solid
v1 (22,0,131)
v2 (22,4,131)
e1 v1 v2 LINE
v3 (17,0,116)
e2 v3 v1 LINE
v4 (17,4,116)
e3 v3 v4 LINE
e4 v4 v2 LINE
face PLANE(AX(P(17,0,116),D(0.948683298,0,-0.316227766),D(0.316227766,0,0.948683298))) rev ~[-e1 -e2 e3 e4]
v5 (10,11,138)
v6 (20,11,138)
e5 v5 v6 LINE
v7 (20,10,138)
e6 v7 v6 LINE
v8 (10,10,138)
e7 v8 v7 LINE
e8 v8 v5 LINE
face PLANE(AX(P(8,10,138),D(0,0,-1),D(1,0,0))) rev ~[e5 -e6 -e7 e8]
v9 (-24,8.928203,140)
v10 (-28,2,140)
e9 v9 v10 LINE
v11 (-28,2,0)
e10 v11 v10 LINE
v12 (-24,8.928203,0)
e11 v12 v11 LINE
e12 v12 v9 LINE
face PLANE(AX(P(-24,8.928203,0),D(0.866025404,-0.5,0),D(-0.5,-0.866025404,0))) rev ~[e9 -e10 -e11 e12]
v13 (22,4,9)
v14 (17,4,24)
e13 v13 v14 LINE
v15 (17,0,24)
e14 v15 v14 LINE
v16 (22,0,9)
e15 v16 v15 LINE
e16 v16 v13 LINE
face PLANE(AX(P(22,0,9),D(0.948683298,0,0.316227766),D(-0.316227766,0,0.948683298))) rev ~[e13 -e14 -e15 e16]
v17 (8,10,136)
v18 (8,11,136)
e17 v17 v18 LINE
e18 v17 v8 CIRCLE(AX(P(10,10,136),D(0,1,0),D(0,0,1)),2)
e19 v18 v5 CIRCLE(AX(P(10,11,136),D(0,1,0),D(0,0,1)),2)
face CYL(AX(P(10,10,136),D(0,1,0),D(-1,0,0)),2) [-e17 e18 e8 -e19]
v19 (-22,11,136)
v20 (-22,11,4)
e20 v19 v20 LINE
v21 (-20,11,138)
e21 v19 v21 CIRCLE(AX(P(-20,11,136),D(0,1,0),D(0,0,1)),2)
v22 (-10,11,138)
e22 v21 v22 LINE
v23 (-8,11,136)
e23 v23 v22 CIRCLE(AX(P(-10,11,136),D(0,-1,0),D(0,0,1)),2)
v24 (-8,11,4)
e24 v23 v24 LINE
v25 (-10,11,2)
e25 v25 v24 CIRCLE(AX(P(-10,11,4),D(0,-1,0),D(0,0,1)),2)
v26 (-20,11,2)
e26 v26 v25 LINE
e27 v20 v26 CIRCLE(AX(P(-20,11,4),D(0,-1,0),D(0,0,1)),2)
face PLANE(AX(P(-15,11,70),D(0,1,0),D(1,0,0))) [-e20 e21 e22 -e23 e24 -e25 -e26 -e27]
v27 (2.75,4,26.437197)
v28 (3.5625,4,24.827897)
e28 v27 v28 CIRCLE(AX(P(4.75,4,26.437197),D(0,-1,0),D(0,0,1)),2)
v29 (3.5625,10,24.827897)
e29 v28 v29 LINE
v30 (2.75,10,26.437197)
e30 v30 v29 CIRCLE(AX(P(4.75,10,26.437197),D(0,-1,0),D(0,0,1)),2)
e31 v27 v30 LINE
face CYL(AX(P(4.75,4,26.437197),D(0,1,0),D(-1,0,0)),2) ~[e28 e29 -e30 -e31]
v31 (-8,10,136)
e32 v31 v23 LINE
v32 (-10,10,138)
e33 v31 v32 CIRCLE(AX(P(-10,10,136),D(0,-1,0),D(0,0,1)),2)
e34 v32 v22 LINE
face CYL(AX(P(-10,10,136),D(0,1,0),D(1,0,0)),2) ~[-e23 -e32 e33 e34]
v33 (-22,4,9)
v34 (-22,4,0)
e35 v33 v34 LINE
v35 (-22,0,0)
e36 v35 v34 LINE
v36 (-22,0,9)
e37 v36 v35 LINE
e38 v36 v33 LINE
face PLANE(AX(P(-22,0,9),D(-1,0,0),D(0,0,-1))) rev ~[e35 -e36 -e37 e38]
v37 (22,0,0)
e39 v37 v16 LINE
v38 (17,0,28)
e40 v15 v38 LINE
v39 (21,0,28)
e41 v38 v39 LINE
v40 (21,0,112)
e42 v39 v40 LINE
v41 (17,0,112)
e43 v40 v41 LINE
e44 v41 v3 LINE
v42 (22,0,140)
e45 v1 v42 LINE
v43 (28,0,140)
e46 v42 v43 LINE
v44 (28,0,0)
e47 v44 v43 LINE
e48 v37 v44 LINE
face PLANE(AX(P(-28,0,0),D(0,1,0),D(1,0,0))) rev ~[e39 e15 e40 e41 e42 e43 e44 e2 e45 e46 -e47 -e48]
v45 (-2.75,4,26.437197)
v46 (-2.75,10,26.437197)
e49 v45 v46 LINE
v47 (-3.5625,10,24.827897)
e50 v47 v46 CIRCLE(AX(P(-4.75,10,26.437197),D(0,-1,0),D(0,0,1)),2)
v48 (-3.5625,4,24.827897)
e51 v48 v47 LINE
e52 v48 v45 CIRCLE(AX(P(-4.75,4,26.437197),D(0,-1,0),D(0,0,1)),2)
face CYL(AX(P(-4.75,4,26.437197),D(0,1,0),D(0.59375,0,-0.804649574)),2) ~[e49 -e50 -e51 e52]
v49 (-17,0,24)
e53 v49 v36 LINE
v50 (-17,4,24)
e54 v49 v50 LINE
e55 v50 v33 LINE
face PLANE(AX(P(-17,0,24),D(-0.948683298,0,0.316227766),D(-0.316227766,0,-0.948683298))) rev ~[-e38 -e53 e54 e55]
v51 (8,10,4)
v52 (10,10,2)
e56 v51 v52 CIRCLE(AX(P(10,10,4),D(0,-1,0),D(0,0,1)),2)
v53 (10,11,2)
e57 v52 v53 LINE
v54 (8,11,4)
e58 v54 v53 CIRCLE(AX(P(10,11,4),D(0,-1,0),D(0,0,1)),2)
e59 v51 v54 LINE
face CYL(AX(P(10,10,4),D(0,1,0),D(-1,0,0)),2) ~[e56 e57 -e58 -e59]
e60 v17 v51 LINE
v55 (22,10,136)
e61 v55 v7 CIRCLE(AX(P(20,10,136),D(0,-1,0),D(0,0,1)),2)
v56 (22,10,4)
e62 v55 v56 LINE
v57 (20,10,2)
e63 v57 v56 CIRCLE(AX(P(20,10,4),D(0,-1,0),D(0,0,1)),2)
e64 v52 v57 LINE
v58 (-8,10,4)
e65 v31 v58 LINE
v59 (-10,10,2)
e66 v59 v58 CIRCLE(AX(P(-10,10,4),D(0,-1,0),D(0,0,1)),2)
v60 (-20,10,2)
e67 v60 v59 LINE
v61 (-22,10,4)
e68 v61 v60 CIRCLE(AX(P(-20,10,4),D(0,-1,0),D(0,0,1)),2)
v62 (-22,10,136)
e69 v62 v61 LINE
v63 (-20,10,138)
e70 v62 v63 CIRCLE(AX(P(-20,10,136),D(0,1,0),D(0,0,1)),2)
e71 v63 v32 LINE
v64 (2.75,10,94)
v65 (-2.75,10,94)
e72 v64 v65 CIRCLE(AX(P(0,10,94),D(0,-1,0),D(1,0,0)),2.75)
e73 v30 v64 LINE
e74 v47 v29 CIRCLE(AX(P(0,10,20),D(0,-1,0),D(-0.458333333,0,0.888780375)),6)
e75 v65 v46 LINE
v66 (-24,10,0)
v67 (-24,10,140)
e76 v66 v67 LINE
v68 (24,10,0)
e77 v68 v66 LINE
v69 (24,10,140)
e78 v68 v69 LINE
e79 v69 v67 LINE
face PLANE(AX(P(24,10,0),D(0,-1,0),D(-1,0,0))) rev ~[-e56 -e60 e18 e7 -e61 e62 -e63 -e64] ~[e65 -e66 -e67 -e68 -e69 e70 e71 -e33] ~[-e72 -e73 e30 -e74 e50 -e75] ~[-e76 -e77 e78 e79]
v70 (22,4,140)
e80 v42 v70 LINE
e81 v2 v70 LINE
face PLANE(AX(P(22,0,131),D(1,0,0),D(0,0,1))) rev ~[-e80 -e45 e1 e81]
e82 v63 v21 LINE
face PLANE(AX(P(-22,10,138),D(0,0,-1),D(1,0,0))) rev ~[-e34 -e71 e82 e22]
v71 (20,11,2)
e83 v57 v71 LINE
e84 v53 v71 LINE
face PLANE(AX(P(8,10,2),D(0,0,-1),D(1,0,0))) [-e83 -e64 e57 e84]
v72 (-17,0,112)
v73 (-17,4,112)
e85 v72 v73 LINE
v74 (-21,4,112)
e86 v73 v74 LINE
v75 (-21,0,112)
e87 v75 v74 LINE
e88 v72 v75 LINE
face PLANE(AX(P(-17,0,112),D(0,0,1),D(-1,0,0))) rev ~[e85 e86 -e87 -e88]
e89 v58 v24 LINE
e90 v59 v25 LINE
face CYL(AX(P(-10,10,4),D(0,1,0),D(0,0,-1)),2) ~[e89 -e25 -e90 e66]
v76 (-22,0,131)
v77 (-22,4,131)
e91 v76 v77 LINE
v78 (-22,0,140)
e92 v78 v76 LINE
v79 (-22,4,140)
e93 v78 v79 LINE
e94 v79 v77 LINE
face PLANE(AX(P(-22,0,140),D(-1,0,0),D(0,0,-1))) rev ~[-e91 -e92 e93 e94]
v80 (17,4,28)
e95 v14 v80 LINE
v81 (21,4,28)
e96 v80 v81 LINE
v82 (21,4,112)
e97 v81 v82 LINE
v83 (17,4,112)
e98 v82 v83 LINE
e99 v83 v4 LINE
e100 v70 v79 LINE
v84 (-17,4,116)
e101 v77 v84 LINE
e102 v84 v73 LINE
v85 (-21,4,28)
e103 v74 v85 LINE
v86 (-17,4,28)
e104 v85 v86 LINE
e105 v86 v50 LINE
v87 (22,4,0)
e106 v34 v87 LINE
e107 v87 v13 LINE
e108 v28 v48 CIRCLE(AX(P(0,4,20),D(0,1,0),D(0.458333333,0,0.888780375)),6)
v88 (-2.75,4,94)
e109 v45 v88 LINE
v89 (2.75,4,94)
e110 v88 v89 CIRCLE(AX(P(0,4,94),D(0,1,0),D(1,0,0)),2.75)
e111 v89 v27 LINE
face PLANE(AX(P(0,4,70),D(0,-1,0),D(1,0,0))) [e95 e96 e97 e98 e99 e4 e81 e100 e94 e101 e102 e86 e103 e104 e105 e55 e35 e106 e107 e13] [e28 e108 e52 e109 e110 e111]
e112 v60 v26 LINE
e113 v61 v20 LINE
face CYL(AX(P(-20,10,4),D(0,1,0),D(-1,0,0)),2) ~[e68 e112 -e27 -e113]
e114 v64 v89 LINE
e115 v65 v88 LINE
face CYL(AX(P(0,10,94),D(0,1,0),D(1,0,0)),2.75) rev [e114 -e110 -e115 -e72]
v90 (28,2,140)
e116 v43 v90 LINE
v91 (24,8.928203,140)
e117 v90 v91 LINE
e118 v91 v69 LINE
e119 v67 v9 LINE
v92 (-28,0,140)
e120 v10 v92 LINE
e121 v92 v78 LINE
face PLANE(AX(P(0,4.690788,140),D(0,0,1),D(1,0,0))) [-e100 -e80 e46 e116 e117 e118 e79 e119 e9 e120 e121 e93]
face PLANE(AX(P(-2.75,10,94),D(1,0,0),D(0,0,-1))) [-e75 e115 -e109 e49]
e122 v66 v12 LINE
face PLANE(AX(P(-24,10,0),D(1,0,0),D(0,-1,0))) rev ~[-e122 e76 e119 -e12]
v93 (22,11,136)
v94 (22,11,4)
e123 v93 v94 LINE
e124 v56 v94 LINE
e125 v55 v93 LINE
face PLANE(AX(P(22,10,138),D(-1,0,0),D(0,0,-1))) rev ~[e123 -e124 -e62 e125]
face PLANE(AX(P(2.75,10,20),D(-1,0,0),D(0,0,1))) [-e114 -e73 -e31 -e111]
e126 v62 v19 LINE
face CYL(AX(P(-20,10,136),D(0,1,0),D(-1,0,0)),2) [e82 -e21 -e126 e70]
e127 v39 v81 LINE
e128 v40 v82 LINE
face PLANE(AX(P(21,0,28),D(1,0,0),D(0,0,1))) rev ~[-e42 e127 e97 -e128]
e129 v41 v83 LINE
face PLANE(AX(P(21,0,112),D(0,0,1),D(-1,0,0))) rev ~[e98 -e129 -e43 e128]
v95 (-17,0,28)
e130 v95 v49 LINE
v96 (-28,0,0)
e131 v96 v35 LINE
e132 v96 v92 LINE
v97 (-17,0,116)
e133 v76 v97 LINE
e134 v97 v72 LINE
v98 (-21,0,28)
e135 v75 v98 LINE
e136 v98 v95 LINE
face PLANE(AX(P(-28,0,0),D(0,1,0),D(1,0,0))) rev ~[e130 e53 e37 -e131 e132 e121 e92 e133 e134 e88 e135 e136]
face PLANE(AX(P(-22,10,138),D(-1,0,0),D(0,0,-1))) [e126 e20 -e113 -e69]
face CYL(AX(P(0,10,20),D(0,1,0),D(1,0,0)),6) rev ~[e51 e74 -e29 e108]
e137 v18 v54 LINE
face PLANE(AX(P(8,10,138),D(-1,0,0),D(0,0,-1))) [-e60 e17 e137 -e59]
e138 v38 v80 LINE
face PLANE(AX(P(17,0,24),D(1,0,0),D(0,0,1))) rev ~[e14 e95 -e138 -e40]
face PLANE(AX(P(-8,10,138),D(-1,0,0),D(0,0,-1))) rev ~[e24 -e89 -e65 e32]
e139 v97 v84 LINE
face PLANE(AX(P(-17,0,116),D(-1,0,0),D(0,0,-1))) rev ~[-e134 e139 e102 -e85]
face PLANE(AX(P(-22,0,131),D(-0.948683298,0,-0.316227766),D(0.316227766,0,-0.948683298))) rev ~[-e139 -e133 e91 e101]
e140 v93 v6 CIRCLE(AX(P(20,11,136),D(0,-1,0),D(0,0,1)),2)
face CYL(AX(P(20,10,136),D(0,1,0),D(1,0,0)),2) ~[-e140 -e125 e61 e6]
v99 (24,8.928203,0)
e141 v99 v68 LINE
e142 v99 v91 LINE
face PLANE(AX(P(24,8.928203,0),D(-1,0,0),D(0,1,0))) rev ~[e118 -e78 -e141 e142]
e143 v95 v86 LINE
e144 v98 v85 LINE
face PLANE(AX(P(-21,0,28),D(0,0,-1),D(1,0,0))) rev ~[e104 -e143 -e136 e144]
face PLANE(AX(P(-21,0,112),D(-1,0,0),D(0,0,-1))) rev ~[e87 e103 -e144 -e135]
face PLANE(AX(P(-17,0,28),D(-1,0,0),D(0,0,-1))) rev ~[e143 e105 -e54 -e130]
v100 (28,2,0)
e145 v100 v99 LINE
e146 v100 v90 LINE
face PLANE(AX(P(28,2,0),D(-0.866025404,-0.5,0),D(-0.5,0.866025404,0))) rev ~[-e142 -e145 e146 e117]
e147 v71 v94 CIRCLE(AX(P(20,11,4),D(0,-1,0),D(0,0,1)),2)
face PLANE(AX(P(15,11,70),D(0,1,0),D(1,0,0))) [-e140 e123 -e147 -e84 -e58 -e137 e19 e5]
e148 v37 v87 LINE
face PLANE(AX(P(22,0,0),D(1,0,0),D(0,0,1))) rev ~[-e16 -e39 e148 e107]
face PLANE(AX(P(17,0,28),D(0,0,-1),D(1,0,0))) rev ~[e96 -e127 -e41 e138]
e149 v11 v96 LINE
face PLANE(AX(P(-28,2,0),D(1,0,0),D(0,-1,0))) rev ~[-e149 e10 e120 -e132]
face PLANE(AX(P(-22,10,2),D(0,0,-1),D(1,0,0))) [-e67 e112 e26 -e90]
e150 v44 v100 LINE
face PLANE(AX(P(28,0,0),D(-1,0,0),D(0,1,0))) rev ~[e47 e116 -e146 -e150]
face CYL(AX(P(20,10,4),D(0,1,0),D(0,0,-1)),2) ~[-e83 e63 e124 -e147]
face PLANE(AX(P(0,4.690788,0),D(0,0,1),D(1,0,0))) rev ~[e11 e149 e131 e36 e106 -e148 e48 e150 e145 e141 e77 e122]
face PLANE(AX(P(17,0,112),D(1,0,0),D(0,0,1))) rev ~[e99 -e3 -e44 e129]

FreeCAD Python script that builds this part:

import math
import FreeCAD as App
import Part
import Sketcher
from FreeCAD import Vector
Q = App.Units.Quantity


def edges_at(feature, points):
    """Names of the edges that pass closest to the given points."""
    edges = feature.Shape.Edges
    near = lambda p: min(range(len(edges)), key=lambda i: edges[i].distToShape(Part.Vertex(*p))[0])
    return sorted({f"Edge{near(p) + 1}" for p in points})


def add_polygon(sketch, points):
    """Adds a closed chain of lines whose ends are joined by coincident constraints."""
    first, n = sketch.GeometryCount, len(points)
    for a, b in zip(points, points[1:] + points[:1]):
        sketch.addGeometry(Part.LineSegment(App.Vector(*a, 0), App.Vector(*b, 0)), False)
    for i in range(n):
        sketch.addConstraint(Sketcher.Constraint("Coincident", first + i, 2, first + (i + 1) % n, 1))

doc = App.newDocument("Part")
body = doc.addObject("PartDesign::Body", "Body")

sketch1 = body.newObject("Sketcher::SketchObject", "Sketch")
sketch1.AttachmentSupport = (doc.getObject("XY_Plane"), [""])
sketch1.MapMode = "FlatFace"
add_polygon(sketch1, [(-28, 0), (28, 0), (28, 2), (24, 8.9), (24, 10), (-24, 10), (-24, 8.9), (-28, 2)])
sketch1.addConstraint(Sketcher.Constraint("Horizontal", 0))
sketch1.addConstraint(Sketcher.Constraint("Vertical", 1))
sketch1.addConstraint(Sketcher.Constraint("Vertical", 3))
sketch1.addConstraint(Sketcher.Constraint("Horizontal", 4))
sketch1.addConstraint(Sketcher.Constraint("Vertical", 5))
sketch1.addConstraint(Sketcher.Constraint("Vertical", 7))
sketch1.addConstraint(Sketcher.Constraint("Symmetric", 0, 2, 7, 2, -1, 1))
sketch1.addConstraint(Sketcher.Constraint("Symmetric", 2, 2, 5, 2, -2))
sketch1.addConstraint(Sketcher.Constraint("Horizontal", 1, 2, 6, 2))
sketch1.addConstraint(Sketcher.Constraint("DistanceX", 0, 1, 0, 2, 56.0))
sketch1.addConstraint(Sketcher.Constraint("DistanceX", 4, 2, 4, 1, 48.0))
sketch1.addConstraint(Sketcher.Constraint("DistanceY", 1, 1, 1, 2, 2.0))
sketch1.addConstraint(Sketcher.Constraint("Angle", 2, Q("120 deg")))
sketch1.addConstraint(Sketcher.Constraint("DistanceY", -1, 1, 3, 2, 10.0))
pad1 = body.newObject("PartDesign::Pad", "Pad")
pad1.Profile = sketch1
pad1.Length = 140

sketch2 = body.newObject("Sketcher::SketchObject", "Sketch001")
sketch2.AttachmentSupport = (doc.getObject("XZ_Plane"), [""])
sketch2.MapMode = "FlatFace"
add_polygon(sketch2, [(-22, 140), (-22, 131), (-17, 116), (-17, 112), (-21, 112), (-21, 28), (-17, 28), (-17, 24), (-22, 9), (-22, 0), (22, 0), (22, 9), (17, 24), (17, 28), (21, 28), (21, 112), (17, 112), (17, 116), (22, 131), (22, 140)])
sketch2.addConstraint(Sketcher.Constraint("Vertical", 0))
sketch2.addConstraint(Sketcher.Constraint("Vertical", 2))
sketch2.addConstraint(Sketcher.Constraint("Horizontal", 3))
sketch2.addConstraint(Sketcher.Constraint("Vertical", 4))
sketch2.addConstraint(Sketcher.Constraint("Horizontal", 5))
sketch2.addConstraint(Sketcher.Constraint("Vertical", 6))
sketch2.addConstraint(Sketcher.Constraint("Vertical", 8))
sketch2.addConstraint(Sketcher.Constraint("Horizontal", 9))
sketch2.addConstraint(Sketcher.Constraint("Vertical", 10))
sketch2.addConstraint(Sketcher.Constraint("Vertical", 12))
sketch2.addConstraint(Sketcher.Constraint("Horizontal", 13))
sketch2.addConstraint(Sketcher.Constraint("Vertical", 14))
sketch2.addConstraint(Sketcher.Constraint("Horizontal", 15))
sketch2.addConstraint(Sketcher.Constraint("Vertical", 16))
sketch2.addConstraint(Sketcher.Constraint("Vertical", 18))
sketch2.addConstraint(Sketcher.Constraint("Horizontal", 19))
sketch2.addConstraint(Sketcher.Constraint("Symmetric", 8, 2, 9, 2, -1, 1))
sketch2.addConstraint(Sketcher.Constraint("Symmetric", 6, 2, 11, 2, -2))
sketch2.addConstraint(Sketcher.Constraint("Symmetric", 4, 2, 13, 2, -2))
sketch2.addConstraint(Sketcher.Constraint("Symmetric", 2, 2, 15, 2, -2))
sketch2.addConstraint(Sketcher.Constraint("Symmetric", 0, 2, 17, 2, -2))
sketch2.addConstraint(Sketcher.Constraint("Parallel", 1, 11))
sketch2.addConstraint(Sketcher.Constraint("Parallel", 7, 17))
sketch2.addConstraint(Sketcher.Constraint("Horizontal", 7, 2, 10, 2))
sketch2.addConstraint(Sketcher.Constraint("Vertical", 2, 2, 5, 2))
sketch2.addConstraint(Sketcher.Constraint("Vertical", 0, 2, 7, 2))
sketch2.addConstraint(Sketcher.Constraint("Equal", 15, 2))
sketch2.addConstraint(Sketcher.Constraint("Equal", 2, 6))
sketch2.addConstraint(Sketcher.Constraint("Equal", 0, 8))
sketch2.addConstraint(Sketcher.Constraint("DistanceX", 3, 2, 3, 1, 4.0))
sketch2.addConstraint(Sketcher.Constraint("DistanceX", 9, 1, 9, 2, 44.0))
sketch2.addConstraint(Sketcher.Constraint("DistanceY", 0, 2, 0, 1, 9.0))
sketch2.addConstraint(Sketcher.Constraint("DistanceY", 4, 2, 4, 1, 84.0))
sketch2.addConstraint(Sketcher.Constraint("DistanceY", -1, 1, 0, 2, 131.0))
sketch2.addConstraint(Sketcher.Constraint("DistanceX", 1, 2, -1, 1, 17.0))
pocket1 = body.newObject("PartDesign::Pocket", "Pocket")
pocket1.Profile = sketch2
pocket1.Length = 4

sketch3 = body.newObject("Sketcher::SketchObject", "Sketch002")
sketch3.AttachmentSupport = (doc.getObject("XZ_Plane"), [""])
sketch3.MapMode = "FlatFace"
sketch3.AttachmentOffset = App.Placement(Vector(0, 0, -10), App.Rotation())
sketch3.addGeometry(Part.LineSegment(Vector(2.8, 94, 0), Vector(2.8, 20, 0)), False)
sketch3.addGeometry(Part.ArcOfCircle(Part.Circle(Vector(0, 20, 0), Vector(0, 0, 1), 2.8), math.radians(180), math.radians(360)), False)
sketch3.addGeometry(Part.LineSegment(Vector(-2.8, 20, 0), Vector(-2.8, 94, 0)), False)
sketch3.addGeometry(Part.ArcOfCircle(Part.Circle(Vector(0, 94, 0), Vector(0, 0, 1), 2.8), math.radians(0), math.radians(180)), False)
sketch3.addConstraint(Sketcher.Constraint("Tangent", 0, 2, 1, 2))
sketch3.addConstraint(Sketcher.Constraint("Tangent", 1, 1, 2, 1))
sketch3.addConstraint(Sketcher.Constraint("Tangent", 2, 2, 3, 2))
sketch3.addConstraint(Sketcher.Constraint("Tangent", 3, 1, 0, 1))
sketch3.addConstraint(Sketcher.Constraint("Vertical", 0))
sketch3.addConstraint(Sketcher.Constraint("Vertical", 2))
sketch3.addConstraint(Sketcher.Constraint("PointOnObject", 1, 3, -2))
sketch3.addConstraint(Sketcher.Constraint("DistanceY", 0, 2, 0, 1, 74.0))
sketch3.addConstraint(Sketcher.Constraint("Radius", 1, 2.75))
sketch3.addConstraint(Sketcher.Constraint("DistanceY", -1, 1, 1, 3, 20.0))
pocket2 = body.newObject("PartDesign::Pocket", "Pocket001")
pocket2.Profile = sketch3
pocket2.Type = "ThroughAll"
pocket2.Reversed = True

sketch4 = body.newObject("Sketcher::SketchObject", "Sketch003")
sketch4.AttachmentSupport = (doc.getObject("XZ_Plane"), [""])
sketch4.MapMode = "FlatFace"
sketch4.AttachmentOffset = App.Placement(Vector(0, 0, -10), App.Rotation())
sketch4.addGeometry(Part.Circle(Vector(0, 20, 0), Vector(0, 0, 1), 6), False)
sketch4.addConstraint(Sketcher.Constraint("PointOnObject", 0, 3, -2))
sketch4.addConstraint(Sketcher.Constraint("Diameter", 0, 12.0))
sketch4.addConstraint(Sketcher.Constraint("DistanceY", -1, 1, 0, 3, 20.0))
pocket3 = body.newObject("PartDesign::Pocket", "Pocket002")
pocket3.Profile = sketch4
pocket3.Type = "ThroughAll"
pocket3.Reversed = True

sketch5 = body.newObject("Sketcher::SketchObject", "Sketch004")
sketch5.AttachmentSupport = (doc.getObject("XZ_Plane"), [""])
sketch5.MapMode = "FlatFace"
sketch5.AttachmentOffset = App.Placement(Vector(0, 0, -10), App.Rotation())
add_polygon(sketch5, [(8, 2), (8, 138), (22, 138), (22, 2)])
add_polygon(sketch5, [(-22, 2), (-22, 138), (-8, 138), (-8, 2)])
sketch5.addConstraint(Sketcher.Constraint("Vertical", 0))
sketch5.addConstraint(Sketcher.Constraint("Horizontal", 1))
sketch5.addConstraint(Sketcher.Constraint("Vertical", 2))
sketch5.addConstraint(Sketcher.Constraint("Horizontal", 3))
sketch5.addConstraint(Sketcher.Constraint("Vertical", 4))
sketch5.addConstraint(Sketcher.Constraint("Horizontal", 5))
sketch5.addConstraint(Sketcher.Constraint("Vertical", 6))
sketch5.addConstraint(Sketcher.Constraint("Horizontal", 7))
sketch5.addConstraint(Sketcher.Constraint("Symmetric", 1, 2, 4, 2, -2))
sketch5.addConstraint(Sketcher.Constraint("Symmetric", 3, 2, 6, 2, -2))
sketch5.addConstraint(Sketcher.Constraint("DistanceX", 1, 1, 1, 2, 14.0))
sketch5.addConstraint(Sketcher.Constraint("DistanceY", 0, 1, 0, 2, 136.0))
sketch5.addConstraint(Sketcher.Constraint("DistanceX", -1, 1, 0, 2, 8.0))
sketch5.addConstraint(Sketcher.Constraint("DistanceY", -1, 1, 0, 2, 138.0))
pad2 = body.newObject("PartDesign::Pad", "Pad001")
pad2.Profile = sketch5
pad2.Length = 1
pad2.Reversed = True
doc.recompute()

fillet = body.newObject("PartDesign::Fillet", "Fillet")
fillet.Base = (pad2, edges_at(pad2, [
    (2.75, 7, 25.333),
    (-8, 10.5, 138),
    (-8, 10.5, 2),
    (-22, 10.5, 2),
    (-22, 10.5, 138),
    (22, 10.5, 138),
    (22, 10.5, 2),
    (8, 10.5, 2),
    (8, 10.5, 138),
    (-2.75, 7, 25.333),
]))
fillet.Radius = 2

doc.recompute()
